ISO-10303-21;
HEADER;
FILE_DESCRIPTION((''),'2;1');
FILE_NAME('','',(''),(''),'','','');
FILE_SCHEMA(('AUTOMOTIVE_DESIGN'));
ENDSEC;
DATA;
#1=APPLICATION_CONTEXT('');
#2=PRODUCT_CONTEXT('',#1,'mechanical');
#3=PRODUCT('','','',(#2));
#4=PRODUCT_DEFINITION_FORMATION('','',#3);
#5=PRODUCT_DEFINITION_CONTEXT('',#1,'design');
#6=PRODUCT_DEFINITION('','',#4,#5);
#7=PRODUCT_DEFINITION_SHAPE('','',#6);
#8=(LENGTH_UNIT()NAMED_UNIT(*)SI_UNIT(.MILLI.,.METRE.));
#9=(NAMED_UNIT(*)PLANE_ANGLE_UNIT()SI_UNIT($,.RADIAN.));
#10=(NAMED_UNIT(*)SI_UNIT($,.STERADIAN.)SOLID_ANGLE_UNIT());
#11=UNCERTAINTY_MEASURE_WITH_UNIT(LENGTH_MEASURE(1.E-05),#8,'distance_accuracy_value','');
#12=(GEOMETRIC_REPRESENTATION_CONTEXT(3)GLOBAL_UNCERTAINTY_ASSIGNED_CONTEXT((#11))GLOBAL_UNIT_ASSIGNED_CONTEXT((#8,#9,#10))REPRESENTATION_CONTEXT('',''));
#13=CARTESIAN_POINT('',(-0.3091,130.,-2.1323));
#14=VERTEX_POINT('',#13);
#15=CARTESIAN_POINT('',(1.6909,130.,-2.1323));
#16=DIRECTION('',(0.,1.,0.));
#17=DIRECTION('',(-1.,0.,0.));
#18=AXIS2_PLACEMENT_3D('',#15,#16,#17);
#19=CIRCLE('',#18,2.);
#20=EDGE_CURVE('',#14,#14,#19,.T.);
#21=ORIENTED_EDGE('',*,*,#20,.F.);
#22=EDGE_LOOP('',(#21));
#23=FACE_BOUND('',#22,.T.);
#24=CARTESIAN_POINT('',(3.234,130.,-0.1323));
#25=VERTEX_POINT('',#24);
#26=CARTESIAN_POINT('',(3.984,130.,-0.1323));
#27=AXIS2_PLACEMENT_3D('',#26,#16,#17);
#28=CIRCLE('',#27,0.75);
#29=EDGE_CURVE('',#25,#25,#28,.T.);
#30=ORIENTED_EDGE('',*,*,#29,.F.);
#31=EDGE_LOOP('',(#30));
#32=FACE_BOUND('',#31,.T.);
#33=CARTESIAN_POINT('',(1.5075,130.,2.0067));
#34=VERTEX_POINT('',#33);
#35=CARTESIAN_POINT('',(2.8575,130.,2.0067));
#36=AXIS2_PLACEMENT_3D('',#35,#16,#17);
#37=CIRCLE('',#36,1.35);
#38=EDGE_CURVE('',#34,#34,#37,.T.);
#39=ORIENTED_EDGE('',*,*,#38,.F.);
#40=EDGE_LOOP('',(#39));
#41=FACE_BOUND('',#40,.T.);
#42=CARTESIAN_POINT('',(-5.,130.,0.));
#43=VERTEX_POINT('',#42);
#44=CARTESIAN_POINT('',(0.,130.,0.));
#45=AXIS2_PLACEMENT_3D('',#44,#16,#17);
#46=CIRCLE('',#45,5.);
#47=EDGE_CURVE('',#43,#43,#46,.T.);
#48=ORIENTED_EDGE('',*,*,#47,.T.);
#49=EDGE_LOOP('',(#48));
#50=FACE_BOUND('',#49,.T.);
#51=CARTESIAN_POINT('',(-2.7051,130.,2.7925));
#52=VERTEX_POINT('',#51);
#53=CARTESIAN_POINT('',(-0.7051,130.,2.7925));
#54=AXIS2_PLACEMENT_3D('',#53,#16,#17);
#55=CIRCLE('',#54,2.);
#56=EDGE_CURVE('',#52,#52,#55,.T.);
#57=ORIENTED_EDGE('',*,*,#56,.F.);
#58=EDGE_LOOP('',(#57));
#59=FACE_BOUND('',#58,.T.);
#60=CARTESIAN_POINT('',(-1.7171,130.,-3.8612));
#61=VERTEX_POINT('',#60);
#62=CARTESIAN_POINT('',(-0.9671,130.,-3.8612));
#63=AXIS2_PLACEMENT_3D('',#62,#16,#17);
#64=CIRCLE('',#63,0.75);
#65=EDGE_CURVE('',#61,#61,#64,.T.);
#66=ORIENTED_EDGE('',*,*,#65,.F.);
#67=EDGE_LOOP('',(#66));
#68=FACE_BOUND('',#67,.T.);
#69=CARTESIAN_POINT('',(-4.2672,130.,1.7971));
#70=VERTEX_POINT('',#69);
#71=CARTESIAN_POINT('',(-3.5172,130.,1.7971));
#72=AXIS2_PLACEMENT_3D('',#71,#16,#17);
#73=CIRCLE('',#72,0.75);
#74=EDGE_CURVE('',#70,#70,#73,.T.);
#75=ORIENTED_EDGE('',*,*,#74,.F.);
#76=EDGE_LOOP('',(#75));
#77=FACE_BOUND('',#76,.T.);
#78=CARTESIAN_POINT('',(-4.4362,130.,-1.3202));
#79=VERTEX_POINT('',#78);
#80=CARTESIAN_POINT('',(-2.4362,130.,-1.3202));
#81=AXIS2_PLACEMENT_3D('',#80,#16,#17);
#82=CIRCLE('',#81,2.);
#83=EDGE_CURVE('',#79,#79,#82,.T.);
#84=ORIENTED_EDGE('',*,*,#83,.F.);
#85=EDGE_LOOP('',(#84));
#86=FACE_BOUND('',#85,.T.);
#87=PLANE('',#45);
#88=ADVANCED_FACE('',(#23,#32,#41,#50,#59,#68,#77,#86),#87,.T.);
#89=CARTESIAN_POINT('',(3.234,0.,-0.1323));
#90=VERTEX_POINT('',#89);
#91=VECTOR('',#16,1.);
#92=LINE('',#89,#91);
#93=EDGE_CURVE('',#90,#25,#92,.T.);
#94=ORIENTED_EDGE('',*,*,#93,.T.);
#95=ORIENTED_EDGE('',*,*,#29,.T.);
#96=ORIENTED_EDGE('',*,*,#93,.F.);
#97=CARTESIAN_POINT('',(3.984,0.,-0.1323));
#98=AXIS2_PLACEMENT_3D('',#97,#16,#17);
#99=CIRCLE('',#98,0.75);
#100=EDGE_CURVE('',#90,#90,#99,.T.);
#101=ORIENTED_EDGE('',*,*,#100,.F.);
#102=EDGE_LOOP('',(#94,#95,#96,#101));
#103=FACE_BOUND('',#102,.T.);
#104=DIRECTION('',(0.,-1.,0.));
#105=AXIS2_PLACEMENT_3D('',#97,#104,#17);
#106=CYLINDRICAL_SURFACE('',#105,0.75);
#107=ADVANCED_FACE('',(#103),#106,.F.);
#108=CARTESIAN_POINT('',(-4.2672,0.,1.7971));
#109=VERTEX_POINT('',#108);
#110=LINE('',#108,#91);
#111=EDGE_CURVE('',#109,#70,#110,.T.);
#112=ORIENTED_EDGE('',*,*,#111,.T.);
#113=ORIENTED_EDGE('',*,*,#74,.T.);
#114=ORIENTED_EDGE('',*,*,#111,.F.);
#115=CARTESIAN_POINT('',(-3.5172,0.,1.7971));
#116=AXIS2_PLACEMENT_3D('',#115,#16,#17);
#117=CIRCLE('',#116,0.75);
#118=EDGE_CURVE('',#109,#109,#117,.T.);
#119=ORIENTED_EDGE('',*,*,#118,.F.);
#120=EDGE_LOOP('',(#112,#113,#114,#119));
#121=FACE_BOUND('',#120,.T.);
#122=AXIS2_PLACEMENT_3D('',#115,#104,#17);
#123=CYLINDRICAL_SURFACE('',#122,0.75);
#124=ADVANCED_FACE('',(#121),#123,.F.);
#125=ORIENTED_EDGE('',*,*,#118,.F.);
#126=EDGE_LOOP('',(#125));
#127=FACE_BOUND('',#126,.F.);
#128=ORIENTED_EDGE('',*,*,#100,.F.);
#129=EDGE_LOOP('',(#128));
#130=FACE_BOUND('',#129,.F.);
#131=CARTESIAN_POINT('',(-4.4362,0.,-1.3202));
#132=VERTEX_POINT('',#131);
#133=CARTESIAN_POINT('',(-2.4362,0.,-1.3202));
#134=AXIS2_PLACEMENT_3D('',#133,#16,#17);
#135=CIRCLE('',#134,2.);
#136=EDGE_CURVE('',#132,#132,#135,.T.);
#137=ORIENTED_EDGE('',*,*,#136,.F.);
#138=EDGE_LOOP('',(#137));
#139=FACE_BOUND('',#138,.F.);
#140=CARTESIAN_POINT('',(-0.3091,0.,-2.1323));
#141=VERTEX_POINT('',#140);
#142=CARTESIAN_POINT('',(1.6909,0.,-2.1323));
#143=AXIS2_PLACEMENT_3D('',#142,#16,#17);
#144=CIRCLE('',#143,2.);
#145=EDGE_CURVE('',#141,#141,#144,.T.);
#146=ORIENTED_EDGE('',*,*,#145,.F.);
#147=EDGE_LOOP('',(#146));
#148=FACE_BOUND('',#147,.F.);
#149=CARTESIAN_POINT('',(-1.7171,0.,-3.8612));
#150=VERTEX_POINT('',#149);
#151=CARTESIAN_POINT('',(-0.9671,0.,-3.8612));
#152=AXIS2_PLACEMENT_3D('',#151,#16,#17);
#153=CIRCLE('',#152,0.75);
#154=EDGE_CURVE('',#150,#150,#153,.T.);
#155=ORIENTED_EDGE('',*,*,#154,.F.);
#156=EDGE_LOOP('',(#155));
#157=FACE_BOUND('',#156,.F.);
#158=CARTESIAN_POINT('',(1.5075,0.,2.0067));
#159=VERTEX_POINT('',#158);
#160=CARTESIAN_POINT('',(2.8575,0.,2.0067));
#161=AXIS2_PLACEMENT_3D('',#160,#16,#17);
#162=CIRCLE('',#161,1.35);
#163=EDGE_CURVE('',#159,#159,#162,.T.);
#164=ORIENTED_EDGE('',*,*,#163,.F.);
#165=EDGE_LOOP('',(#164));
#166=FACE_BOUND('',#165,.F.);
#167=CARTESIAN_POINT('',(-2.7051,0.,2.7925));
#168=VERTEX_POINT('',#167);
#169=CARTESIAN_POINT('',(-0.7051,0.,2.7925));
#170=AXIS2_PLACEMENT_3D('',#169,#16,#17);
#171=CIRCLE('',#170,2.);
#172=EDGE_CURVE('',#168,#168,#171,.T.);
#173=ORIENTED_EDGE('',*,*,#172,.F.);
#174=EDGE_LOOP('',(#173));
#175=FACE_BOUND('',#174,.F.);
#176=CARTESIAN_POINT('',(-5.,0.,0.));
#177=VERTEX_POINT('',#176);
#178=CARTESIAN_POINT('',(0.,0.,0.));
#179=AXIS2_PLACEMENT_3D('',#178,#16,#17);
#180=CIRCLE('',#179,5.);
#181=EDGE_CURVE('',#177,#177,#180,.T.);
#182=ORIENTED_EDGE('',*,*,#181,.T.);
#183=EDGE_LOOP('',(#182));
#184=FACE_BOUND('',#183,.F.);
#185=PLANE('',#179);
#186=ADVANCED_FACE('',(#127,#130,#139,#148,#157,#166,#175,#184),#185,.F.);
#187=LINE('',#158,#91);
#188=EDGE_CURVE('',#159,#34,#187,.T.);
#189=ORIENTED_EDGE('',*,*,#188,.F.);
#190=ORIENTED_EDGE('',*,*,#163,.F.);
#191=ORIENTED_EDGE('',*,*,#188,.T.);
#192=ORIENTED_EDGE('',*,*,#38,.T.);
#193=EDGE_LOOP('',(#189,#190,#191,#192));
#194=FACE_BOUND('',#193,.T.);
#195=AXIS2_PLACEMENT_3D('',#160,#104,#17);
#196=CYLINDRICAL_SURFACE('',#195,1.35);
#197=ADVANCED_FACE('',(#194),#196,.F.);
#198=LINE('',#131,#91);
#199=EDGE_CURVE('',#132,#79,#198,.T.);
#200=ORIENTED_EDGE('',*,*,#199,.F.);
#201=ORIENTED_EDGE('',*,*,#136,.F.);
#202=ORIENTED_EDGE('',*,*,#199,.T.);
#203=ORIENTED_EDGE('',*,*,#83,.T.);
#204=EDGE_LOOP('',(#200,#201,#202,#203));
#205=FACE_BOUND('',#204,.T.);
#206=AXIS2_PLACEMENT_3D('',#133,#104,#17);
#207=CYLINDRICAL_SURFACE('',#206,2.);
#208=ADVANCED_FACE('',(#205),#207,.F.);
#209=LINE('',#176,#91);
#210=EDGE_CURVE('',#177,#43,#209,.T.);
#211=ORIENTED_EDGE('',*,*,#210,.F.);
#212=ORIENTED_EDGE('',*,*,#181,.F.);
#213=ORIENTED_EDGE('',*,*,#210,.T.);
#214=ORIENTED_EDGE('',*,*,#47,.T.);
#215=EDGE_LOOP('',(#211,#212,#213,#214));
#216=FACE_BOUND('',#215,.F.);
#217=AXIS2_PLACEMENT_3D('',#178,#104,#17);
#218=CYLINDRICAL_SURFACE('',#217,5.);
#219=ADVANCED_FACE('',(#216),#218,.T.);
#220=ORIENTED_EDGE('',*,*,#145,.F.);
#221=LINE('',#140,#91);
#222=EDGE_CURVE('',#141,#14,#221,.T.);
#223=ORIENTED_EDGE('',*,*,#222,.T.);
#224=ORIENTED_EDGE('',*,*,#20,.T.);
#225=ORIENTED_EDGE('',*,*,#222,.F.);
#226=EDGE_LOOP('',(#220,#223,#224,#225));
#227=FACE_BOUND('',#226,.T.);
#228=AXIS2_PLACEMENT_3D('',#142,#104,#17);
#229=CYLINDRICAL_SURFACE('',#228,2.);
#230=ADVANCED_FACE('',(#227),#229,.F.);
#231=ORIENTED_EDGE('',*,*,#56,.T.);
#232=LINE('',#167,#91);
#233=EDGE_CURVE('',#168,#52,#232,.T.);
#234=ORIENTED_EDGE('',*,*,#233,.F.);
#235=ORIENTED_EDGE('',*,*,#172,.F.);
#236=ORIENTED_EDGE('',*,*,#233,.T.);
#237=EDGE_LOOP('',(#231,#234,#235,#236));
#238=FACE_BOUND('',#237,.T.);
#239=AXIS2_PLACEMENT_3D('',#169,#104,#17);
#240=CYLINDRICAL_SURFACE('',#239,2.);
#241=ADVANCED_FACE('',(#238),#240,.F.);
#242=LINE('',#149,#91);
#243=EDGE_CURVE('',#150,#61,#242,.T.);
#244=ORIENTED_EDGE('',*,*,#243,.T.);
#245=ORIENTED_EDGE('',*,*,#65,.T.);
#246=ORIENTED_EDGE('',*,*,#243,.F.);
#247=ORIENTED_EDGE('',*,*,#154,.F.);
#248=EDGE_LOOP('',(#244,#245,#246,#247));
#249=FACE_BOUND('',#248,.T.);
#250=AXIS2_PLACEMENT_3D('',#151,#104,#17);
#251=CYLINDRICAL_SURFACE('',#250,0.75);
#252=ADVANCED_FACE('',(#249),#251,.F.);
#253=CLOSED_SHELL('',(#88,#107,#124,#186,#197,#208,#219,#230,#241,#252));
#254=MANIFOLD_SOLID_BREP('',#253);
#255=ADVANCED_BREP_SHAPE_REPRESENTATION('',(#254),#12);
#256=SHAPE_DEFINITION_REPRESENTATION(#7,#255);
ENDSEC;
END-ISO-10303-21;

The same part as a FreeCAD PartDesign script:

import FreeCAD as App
import Part
import Sketcher

V = App.Vector
Q = App.Units.Quantity

doc = App.newDocument("Part")
params = doc.addObject("Spreadsheet::Sheet", "Params")
for row, (alias, value) in enumerate([
    ("sketch1_diameter", "10 mm"),
    ("sketch1_diameter2", "4 mm"),
    ("sketch1_diameter3", "1.5 mm"),
    ("sketch1_diameter4", "2.7 mm"),
    ("pad1_length", "130 mm"),
], start=1):
    params.set(f"A{row}", alias)
    params.set(f"B{row}", "=" + value)
    params.setAlias(f"B{row}", alias)

body = doc.addObject("PartDesign::Body", "Body")

sketch1 = body.newObject("Sketcher::SketchObject", "Sketch")
sketch1.AttachmentSupport = (doc.getObject("XZ_Plane"), [""])
sketch1.MapMode = "FlatFace"
sketch1.addGeometry([
    Part.Circle(V(0, 0, 0), V(0, 0, 1), 5),
    Part.Circle(V(4, -0.1, 0), V(0, 0, 1), 0.8),
    Part.Circle(V(1.7, -2.1, 0), V(0, 0, 1), 2),
    Part.Circle(V(-1, -3.9, 0), V(0, 0, 1), 0.8),
    Part.Circle(V(-2.4, -1.3, 0), V(0, 0, 1), 2),
    Part.Circle(V(2.9, 2, 0), V(0, 0, 1), 1.4),
    Part.Circle(V(-3.5, 1.8, 0), V(0, 0, 1), 0.8),
    Part.Circle(V(-0.7, 2.8, 0), V(0, 0, 1), 2),
], False)
sketch1.addConstraint([
    Sketcher.Constraint("Coincident", 0, 3, -1, 1),
    Sketcher.Constraint("Equal", 1, 3),
    Sketcher.Constraint("Equal", 2, 4),
    Sketcher.Constraint("Equal", 3, 6),
    Sketcher.Constraint("Equal", 4, 7),
    Sketcher.Constraint("Diameter", 0, Q("10 mm")),
    Sketcher.Constraint("Diameter", 2, Q("4 mm")),
    Sketcher.Constraint("Diameter", 1, Q("1.5 mm")),
    Sketcher.Constraint("Diameter", 5, Q("2.7 mm")),
    Sketcher.Constraint("DistanceY", 2, 3, 1, 3, Q("2 mm")),
    Sketcher.Constraint("DistanceX", 6, 3, 3, 3, Q("2.55 mm")),
    Sketcher.Constraint("DistanceX", -1, 1, 1, 3, Q("3.984 mm")),
    Sketcher.Constraint("DistanceX", -1, 1, 2, 3, Q("1.691 mm")),
    Sketcher.Constraint("DistanceX", 3, 3, -1, 1, Q("0.967 mm")),
    Sketcher.Constraint("DistanceY", -1, 1, 6, 3, Q("1.797 mm")),
    Sketcher.Constraint("DistanceX", 7, 3, -1, 1, Q("0.705 mm")),
    Sketcher.Constraint("DistanceY", 3, 3, 2, 3, Q("1.729 mm")),
    Sketcher.Constraint("DistanceX", 4, 3, 3, 3, Q("1.469 mm")),
    Sketcher.Constraint("DistanceY", 3, 3, 4, 3, Q("2.541 mm")),
    Sketcher.Constraint("DistanceY", 1, 3, 5, 3, Q("2.139 mm")),
    Sketcher.Constraint("DistanceY", 1, 3, -1, 1, Q("0.1323 mm")),
    Sketcher.Constraint("DistanceX", -1, 1, 5, 3, Q("2.8575 mm")),
    Sketcher.Constraint("DistanceY", -1, 1, 7, 3, Q("2.7925 mm")),
])
sketch1.setExpression("Constraints[5]", "Params.sketch1_diameter")
sketch1.setExpression("Constraints[6]", "Params.sketch1_diameter2")
sketch1.setExpression("Constraints[7]", "Params.sketch1_diameter3")
sketch1.setExpression("Constraints[8]", "Params.sketch1_diameter4")
pad1 = body.newObject("PartDesign::Pad", "Pad")
pad1.Profile = sketch1
pad1.setExpression("Length", "Params.pad1_length")
pad1.Reversed = True

doc.recompute()
